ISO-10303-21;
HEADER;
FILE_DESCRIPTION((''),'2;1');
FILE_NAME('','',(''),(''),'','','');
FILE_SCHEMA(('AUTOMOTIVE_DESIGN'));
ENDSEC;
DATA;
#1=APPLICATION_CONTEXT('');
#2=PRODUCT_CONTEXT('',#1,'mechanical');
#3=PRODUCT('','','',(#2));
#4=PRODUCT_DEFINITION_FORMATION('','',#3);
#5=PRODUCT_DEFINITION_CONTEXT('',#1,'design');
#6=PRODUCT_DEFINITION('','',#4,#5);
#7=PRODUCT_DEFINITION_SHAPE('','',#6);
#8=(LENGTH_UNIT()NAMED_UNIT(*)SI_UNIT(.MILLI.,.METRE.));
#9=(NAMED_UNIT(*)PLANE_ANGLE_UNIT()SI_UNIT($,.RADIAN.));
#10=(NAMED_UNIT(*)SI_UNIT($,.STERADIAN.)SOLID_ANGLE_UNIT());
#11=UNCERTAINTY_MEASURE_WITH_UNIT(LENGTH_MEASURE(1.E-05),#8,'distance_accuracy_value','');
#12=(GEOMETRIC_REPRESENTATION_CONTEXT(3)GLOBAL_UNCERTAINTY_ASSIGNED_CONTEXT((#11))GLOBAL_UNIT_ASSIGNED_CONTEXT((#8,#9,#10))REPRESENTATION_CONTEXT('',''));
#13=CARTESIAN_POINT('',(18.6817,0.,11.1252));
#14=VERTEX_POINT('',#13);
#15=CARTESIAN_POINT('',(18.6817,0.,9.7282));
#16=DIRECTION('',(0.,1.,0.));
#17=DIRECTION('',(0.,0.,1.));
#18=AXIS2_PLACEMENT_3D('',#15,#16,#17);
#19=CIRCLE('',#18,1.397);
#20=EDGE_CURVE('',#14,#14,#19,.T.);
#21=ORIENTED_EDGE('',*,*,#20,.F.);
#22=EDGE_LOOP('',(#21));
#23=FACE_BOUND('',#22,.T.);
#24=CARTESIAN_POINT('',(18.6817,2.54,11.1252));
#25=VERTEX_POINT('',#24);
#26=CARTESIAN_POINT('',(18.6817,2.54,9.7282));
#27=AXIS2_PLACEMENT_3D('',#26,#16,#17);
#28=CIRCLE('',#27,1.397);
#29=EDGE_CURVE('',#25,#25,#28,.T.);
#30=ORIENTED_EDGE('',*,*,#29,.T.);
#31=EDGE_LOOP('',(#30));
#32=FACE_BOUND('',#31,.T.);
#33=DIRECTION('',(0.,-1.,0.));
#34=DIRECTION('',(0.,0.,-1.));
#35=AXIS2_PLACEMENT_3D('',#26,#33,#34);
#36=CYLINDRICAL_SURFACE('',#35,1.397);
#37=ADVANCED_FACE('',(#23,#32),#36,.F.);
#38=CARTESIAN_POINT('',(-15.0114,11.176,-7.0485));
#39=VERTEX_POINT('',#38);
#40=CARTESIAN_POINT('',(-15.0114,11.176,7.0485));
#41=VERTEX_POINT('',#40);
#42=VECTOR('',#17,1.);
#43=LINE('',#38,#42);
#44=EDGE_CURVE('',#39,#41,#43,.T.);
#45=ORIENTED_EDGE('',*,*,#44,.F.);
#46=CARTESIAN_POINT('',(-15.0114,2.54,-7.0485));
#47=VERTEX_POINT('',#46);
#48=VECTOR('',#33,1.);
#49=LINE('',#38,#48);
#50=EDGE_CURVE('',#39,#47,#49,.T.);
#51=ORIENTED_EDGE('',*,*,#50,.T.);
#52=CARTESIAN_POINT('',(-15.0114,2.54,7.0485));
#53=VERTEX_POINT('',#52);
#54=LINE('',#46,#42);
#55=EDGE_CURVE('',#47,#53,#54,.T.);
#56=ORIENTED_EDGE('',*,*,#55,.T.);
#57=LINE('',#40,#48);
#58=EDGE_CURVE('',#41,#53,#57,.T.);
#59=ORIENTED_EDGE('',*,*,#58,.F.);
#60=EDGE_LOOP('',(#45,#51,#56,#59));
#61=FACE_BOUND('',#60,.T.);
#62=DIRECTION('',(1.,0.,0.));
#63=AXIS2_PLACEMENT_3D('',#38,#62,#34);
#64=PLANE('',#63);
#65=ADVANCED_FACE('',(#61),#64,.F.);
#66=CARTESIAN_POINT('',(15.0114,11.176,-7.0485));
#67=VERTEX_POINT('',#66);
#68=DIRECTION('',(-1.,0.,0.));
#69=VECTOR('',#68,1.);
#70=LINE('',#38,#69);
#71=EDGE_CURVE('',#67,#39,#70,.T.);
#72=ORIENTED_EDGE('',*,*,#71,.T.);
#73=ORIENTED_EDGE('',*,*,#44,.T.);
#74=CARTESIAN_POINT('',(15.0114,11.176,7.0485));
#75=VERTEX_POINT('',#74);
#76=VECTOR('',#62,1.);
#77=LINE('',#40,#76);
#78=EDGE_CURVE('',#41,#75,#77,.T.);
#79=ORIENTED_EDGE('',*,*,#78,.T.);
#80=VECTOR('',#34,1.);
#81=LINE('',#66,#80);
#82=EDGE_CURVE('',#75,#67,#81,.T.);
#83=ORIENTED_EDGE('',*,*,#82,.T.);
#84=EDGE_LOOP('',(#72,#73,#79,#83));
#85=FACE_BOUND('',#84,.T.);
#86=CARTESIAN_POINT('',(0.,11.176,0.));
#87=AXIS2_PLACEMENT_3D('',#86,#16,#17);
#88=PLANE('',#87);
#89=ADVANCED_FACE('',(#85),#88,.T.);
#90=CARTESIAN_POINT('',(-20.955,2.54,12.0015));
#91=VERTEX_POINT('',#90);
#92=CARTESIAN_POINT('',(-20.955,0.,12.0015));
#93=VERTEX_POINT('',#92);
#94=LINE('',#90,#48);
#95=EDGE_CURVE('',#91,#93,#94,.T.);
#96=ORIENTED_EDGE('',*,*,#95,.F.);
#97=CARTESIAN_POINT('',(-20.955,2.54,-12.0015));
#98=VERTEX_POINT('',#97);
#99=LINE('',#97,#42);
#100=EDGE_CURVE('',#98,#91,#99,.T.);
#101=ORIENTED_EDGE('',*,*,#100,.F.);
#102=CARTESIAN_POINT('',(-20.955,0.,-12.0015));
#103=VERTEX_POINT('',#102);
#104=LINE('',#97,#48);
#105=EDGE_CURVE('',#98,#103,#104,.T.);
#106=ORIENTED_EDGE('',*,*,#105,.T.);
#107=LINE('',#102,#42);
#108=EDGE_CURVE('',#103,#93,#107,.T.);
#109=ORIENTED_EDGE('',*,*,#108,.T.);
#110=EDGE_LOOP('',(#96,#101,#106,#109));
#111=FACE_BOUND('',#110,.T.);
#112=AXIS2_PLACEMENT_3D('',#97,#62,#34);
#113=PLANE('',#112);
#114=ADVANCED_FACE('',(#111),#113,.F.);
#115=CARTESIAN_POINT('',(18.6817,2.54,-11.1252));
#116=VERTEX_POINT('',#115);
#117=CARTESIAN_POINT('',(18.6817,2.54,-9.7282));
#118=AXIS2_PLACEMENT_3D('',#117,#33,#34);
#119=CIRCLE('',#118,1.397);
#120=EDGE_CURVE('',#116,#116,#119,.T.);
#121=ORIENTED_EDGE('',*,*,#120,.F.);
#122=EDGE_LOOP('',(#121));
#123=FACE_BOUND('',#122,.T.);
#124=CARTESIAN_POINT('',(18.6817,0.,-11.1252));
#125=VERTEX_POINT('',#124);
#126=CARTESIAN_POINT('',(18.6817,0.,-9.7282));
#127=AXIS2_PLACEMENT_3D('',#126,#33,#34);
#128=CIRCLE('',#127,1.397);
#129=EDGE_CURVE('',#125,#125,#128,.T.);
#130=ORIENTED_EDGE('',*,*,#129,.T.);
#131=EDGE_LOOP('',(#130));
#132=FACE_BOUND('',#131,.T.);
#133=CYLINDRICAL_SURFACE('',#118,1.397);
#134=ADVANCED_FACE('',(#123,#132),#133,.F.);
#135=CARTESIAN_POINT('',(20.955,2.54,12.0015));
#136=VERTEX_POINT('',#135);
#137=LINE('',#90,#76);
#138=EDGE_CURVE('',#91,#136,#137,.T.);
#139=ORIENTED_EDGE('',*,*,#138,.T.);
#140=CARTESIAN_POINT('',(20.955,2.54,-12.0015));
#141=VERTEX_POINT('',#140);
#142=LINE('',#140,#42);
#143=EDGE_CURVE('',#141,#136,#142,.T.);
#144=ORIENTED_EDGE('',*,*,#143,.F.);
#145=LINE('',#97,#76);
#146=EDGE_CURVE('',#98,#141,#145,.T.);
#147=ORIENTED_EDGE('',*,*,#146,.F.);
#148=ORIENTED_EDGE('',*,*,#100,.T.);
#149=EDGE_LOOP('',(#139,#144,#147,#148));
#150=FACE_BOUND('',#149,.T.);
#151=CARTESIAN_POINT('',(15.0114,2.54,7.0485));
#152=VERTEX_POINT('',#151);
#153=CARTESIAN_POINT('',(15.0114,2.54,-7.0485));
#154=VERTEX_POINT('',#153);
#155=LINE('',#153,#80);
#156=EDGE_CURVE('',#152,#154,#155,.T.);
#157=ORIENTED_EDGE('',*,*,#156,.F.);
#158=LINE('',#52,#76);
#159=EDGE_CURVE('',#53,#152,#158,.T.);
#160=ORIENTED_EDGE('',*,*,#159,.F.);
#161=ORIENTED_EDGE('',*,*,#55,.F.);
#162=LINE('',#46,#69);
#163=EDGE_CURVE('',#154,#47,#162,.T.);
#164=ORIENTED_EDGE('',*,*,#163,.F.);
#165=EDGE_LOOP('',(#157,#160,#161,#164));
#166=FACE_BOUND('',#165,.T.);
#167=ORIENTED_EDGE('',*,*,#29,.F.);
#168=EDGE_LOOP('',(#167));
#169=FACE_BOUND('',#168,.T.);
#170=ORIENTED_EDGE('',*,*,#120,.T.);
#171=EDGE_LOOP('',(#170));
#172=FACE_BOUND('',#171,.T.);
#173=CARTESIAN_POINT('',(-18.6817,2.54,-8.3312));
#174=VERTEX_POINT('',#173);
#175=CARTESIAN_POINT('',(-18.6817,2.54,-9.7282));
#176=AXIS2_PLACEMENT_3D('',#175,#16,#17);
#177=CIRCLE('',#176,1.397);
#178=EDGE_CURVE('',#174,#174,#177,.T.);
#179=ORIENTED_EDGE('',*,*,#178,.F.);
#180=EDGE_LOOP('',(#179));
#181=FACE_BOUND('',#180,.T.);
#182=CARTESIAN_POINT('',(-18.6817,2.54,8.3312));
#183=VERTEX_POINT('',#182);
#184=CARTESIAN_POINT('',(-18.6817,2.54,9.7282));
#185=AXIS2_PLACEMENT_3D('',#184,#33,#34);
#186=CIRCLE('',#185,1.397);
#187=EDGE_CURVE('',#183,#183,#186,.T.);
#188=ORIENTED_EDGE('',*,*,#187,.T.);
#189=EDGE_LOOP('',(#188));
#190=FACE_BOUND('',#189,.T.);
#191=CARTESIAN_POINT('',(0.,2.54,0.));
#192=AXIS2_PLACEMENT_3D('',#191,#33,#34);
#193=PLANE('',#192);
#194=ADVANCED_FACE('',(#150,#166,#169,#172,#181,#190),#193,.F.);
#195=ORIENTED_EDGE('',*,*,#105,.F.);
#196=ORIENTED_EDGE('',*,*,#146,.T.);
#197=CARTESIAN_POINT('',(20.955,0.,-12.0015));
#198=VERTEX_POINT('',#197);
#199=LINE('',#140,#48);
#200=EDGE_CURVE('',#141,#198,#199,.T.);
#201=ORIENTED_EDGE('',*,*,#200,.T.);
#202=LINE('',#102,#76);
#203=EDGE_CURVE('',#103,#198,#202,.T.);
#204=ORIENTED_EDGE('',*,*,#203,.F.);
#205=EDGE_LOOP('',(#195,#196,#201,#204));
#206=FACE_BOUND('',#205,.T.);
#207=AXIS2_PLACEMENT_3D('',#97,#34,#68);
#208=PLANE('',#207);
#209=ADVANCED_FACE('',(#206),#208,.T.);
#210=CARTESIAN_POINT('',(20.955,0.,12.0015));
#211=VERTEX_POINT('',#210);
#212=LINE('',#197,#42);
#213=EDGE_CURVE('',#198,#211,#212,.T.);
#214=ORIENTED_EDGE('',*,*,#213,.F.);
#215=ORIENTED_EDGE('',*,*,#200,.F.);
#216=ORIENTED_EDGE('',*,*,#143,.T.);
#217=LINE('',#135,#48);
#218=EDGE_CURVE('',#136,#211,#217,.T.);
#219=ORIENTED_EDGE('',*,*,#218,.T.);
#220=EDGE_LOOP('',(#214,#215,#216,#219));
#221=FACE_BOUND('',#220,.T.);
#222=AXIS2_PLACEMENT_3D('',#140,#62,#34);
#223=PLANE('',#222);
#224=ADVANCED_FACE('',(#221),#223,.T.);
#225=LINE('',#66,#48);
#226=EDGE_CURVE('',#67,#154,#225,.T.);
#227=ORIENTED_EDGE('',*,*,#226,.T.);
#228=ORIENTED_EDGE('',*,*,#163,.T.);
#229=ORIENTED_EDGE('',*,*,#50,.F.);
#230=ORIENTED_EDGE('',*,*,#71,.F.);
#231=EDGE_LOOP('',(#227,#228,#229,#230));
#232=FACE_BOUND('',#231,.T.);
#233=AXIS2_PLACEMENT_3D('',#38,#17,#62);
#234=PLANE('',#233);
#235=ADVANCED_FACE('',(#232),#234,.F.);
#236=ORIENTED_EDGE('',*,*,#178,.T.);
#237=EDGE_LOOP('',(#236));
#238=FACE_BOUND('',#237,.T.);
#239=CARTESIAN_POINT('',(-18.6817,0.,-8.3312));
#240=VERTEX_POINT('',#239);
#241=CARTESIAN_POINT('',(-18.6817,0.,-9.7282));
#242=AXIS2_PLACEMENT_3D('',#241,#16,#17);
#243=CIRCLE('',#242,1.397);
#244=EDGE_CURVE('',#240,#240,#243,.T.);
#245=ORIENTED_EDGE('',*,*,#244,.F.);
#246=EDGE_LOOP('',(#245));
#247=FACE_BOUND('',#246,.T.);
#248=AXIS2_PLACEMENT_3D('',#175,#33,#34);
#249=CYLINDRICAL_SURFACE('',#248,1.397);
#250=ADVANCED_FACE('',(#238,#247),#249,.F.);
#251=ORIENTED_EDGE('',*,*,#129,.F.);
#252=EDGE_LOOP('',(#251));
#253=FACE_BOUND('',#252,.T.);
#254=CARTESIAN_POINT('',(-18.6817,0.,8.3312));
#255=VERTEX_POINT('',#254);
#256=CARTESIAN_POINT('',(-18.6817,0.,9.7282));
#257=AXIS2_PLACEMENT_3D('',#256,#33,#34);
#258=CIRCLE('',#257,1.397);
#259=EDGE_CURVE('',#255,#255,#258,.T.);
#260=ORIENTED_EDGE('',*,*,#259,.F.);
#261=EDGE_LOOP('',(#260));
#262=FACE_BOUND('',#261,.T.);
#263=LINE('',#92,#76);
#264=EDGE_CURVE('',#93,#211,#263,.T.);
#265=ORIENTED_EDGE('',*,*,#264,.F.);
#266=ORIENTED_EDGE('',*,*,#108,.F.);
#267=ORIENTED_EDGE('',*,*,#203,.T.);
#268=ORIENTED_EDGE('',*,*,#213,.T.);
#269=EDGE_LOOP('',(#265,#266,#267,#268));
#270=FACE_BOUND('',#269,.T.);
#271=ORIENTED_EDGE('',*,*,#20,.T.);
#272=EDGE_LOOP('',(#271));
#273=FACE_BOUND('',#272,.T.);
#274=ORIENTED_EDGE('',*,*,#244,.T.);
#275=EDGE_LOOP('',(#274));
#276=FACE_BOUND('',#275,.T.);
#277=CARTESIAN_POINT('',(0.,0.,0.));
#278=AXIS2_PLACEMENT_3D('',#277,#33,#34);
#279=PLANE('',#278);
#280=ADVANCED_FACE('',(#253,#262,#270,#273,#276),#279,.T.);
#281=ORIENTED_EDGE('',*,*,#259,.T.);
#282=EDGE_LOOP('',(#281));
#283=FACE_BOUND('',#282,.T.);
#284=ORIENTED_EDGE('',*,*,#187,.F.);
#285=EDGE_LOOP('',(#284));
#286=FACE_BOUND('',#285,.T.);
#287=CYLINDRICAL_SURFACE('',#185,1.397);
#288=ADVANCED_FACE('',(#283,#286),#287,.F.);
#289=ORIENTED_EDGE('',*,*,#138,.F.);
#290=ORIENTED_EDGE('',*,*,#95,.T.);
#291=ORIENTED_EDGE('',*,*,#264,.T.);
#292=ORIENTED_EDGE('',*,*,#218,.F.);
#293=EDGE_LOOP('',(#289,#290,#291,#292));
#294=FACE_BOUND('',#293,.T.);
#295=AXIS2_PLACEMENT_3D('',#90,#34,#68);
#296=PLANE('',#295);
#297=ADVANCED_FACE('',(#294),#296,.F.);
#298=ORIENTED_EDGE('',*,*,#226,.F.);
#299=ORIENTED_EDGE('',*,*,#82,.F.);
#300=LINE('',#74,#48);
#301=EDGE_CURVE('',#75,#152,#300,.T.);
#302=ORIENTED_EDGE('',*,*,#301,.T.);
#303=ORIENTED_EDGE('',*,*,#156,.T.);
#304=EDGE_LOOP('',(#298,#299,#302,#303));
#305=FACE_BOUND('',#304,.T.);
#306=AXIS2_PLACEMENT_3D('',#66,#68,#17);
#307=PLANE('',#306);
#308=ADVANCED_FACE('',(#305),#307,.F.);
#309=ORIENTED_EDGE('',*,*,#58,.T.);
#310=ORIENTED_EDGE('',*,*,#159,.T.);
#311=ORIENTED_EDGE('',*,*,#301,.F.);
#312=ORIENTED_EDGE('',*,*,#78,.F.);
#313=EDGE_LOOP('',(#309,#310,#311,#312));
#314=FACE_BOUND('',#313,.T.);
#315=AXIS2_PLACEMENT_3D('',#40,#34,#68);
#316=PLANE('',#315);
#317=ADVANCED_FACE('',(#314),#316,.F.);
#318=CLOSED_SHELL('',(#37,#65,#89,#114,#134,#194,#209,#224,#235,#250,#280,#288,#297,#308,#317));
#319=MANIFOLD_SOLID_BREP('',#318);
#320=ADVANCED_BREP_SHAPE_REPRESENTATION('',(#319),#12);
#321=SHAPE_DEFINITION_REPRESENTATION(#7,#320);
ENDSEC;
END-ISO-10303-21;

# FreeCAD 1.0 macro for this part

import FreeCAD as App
import Part
import Sketcher

V = App.Vector
Q = App.Units.Quantity


def add_polygon(sketch, points):
    """Adds a closed chain of lines whose ends are joined by coincident constraints."""
    first, n = sketch.GeometryCount, len(points)
    for a, b in zip(points, points[1:] + points[:1]):
        sketch.addGeometry(Part.LineSegment(App.Vector(*a, 0), App.Vector(*b, 0)), False)
    for i in range(n):
        sketch.addConstraint(Sketcher.Constraint("Coincident", first + i, 2, first + (i + 1) % n, 1))

doc = App.newDocument("Part")
body = doc.addObject("PartDesign::Body", "Body")

# Sketch on XZ plane
sketch1 = body.newObject("Sketcher::SketchObject", "Sketch")
sketch1.AttachmentSupport = (doc.getObject("XZ_Plane"), [""])
sketch1.MapMode = "FlatFace"
add_polygon(sketch1, [(-20.955, -12.0015), (-20.955, 12.0015), (20.955, 12.0015), (20.955, -12.0015)])  # lines 0-3
sketch1.addGeometry(Part.Circle(V(-18.6817, 9.7282, 0), V(0, 0, 1), 1.397), False)  # 4
sketch1.addGeometry(Part.Circle(V(18.6817, 9.7282, 0), V(0, 0, 1), 1.397), False)  # 5
sketch1.addGeometry(Part.Circle(V(-18.6817, -9.7282, 0), V(0, 0, 1), 1.397), False)  # 6
sketch1.addGeometry(Part.Circle(V(18.6817, -9.7282, 0), V(0, 0, 1), 1.397), False)  # 7
sketch1.addConstraint(Sketcher.Constraint("Vertical", 0))
sketch1.addConstraint(Sketcher.Constraint("Horizontal", 1))
sketch1.addConstraint(Sketcher.Constraint("Vertical", 2))
sketch1.addConstraint(Sketcher.Constraint("Horizontal", 3))
sketch1.addConstraint(Sketcher.Constraint("Equal", 4, 5))
sketch1.addConstraint(Sketcher.Constraint("Equal", 5, 6))
sketch1.addConstraint(Sketcher.Constraint("Equal", 6, 7))
sketch1.addConstraint(Sketcher.Constraint("Symmetric", 5, 3, 6, 3, -1, 1))
sketch1.addConstraint(Sketcher.Constraint("Symmetric", 4, 3, 7, 3, -1, 1))
sketch1.addConstraint(Sketcher.Constraint("Symmetric", 0, 2, 2, 2, -1, 1))
sketch1.addConstraint(Sketcher.Constraint("Symmetric", 4, 3, 5, 3, -2))
sketch1.addConstraint(Sketcher.Constraint("Diameter", 4, Q("0.11 in")))
sketch1.addConstraint(Sketcher.Constraint("DistanceX", 1, 1, 1, 2, Q("1.65 in")))
sketch1.addConstraint(Sketcher.Constraint("DistanceY", 0, 1, 0, 2, Q("0.945 in")))
sketch1.addConstraint(Sketcher.Constraint("DistanceY", -1, 1, 4, 3, Q("0.383 in")))
sketch1.addConstraint(Sketcher.Constraint("DistanceX", 4, 3, 5, 3, Q("1.471 in")))
pad1 = body.newObject("PartDesign::Pad", "Pad")
pad1.Profile = sketch1
pad1.Length = Q("0.1 in")
pad1.Reversed = True

# Sketch on XZ plane
sketch2 = body.newObject("Sketcher::SketchObject", "Sketch001")
sketch2.AttachmentSupport = (doc.getObject("XZ_Plane"), [""])
sketch2.MapMode = "FlatFace"
sketch2.AttachmentOffset = App.Placement(V(0, 0, -0.1 * 25.4), App.Rotation())
add_polygon(sketch2, [(-15.0114, -7.0485), (-15.0114, 7.0485), (15.0114, 7.0485), (15.0114, -7.0485)])  # lines 0-3
sketch2.addConstraint(Sketcher.Constraint("Vertical", 0))
sketch2.addConstraint(Sketcher.Constraint("Horizontal", 1))
sketch2.addConstraint(Sketcher.Constraint("Vertical", 2))
sketch2.addConstraint(Sketcher.Constraint("Horizontal", 3))
sketch2.addConstraint(Sketcher.Constraint("Symmetric", 0, 2, 2, 2, -1, 1))
sketch2.addConstraint(Sketcher.Constraint("DistanceX", 1, 1, 1, 2, Q("1.182 in")))
sketch2.addConstraint(Sketcher.Constraint("DistanceY", 0, 1, 0, 2, Q("0.555 in")))
pad2 = body.newObject("PartDesign::Pad", "Pad001")
pad2.Profile = sketch2
pad2.Length = Q("0.34 in")
pad2.Reversed = True

doc.recompute()
